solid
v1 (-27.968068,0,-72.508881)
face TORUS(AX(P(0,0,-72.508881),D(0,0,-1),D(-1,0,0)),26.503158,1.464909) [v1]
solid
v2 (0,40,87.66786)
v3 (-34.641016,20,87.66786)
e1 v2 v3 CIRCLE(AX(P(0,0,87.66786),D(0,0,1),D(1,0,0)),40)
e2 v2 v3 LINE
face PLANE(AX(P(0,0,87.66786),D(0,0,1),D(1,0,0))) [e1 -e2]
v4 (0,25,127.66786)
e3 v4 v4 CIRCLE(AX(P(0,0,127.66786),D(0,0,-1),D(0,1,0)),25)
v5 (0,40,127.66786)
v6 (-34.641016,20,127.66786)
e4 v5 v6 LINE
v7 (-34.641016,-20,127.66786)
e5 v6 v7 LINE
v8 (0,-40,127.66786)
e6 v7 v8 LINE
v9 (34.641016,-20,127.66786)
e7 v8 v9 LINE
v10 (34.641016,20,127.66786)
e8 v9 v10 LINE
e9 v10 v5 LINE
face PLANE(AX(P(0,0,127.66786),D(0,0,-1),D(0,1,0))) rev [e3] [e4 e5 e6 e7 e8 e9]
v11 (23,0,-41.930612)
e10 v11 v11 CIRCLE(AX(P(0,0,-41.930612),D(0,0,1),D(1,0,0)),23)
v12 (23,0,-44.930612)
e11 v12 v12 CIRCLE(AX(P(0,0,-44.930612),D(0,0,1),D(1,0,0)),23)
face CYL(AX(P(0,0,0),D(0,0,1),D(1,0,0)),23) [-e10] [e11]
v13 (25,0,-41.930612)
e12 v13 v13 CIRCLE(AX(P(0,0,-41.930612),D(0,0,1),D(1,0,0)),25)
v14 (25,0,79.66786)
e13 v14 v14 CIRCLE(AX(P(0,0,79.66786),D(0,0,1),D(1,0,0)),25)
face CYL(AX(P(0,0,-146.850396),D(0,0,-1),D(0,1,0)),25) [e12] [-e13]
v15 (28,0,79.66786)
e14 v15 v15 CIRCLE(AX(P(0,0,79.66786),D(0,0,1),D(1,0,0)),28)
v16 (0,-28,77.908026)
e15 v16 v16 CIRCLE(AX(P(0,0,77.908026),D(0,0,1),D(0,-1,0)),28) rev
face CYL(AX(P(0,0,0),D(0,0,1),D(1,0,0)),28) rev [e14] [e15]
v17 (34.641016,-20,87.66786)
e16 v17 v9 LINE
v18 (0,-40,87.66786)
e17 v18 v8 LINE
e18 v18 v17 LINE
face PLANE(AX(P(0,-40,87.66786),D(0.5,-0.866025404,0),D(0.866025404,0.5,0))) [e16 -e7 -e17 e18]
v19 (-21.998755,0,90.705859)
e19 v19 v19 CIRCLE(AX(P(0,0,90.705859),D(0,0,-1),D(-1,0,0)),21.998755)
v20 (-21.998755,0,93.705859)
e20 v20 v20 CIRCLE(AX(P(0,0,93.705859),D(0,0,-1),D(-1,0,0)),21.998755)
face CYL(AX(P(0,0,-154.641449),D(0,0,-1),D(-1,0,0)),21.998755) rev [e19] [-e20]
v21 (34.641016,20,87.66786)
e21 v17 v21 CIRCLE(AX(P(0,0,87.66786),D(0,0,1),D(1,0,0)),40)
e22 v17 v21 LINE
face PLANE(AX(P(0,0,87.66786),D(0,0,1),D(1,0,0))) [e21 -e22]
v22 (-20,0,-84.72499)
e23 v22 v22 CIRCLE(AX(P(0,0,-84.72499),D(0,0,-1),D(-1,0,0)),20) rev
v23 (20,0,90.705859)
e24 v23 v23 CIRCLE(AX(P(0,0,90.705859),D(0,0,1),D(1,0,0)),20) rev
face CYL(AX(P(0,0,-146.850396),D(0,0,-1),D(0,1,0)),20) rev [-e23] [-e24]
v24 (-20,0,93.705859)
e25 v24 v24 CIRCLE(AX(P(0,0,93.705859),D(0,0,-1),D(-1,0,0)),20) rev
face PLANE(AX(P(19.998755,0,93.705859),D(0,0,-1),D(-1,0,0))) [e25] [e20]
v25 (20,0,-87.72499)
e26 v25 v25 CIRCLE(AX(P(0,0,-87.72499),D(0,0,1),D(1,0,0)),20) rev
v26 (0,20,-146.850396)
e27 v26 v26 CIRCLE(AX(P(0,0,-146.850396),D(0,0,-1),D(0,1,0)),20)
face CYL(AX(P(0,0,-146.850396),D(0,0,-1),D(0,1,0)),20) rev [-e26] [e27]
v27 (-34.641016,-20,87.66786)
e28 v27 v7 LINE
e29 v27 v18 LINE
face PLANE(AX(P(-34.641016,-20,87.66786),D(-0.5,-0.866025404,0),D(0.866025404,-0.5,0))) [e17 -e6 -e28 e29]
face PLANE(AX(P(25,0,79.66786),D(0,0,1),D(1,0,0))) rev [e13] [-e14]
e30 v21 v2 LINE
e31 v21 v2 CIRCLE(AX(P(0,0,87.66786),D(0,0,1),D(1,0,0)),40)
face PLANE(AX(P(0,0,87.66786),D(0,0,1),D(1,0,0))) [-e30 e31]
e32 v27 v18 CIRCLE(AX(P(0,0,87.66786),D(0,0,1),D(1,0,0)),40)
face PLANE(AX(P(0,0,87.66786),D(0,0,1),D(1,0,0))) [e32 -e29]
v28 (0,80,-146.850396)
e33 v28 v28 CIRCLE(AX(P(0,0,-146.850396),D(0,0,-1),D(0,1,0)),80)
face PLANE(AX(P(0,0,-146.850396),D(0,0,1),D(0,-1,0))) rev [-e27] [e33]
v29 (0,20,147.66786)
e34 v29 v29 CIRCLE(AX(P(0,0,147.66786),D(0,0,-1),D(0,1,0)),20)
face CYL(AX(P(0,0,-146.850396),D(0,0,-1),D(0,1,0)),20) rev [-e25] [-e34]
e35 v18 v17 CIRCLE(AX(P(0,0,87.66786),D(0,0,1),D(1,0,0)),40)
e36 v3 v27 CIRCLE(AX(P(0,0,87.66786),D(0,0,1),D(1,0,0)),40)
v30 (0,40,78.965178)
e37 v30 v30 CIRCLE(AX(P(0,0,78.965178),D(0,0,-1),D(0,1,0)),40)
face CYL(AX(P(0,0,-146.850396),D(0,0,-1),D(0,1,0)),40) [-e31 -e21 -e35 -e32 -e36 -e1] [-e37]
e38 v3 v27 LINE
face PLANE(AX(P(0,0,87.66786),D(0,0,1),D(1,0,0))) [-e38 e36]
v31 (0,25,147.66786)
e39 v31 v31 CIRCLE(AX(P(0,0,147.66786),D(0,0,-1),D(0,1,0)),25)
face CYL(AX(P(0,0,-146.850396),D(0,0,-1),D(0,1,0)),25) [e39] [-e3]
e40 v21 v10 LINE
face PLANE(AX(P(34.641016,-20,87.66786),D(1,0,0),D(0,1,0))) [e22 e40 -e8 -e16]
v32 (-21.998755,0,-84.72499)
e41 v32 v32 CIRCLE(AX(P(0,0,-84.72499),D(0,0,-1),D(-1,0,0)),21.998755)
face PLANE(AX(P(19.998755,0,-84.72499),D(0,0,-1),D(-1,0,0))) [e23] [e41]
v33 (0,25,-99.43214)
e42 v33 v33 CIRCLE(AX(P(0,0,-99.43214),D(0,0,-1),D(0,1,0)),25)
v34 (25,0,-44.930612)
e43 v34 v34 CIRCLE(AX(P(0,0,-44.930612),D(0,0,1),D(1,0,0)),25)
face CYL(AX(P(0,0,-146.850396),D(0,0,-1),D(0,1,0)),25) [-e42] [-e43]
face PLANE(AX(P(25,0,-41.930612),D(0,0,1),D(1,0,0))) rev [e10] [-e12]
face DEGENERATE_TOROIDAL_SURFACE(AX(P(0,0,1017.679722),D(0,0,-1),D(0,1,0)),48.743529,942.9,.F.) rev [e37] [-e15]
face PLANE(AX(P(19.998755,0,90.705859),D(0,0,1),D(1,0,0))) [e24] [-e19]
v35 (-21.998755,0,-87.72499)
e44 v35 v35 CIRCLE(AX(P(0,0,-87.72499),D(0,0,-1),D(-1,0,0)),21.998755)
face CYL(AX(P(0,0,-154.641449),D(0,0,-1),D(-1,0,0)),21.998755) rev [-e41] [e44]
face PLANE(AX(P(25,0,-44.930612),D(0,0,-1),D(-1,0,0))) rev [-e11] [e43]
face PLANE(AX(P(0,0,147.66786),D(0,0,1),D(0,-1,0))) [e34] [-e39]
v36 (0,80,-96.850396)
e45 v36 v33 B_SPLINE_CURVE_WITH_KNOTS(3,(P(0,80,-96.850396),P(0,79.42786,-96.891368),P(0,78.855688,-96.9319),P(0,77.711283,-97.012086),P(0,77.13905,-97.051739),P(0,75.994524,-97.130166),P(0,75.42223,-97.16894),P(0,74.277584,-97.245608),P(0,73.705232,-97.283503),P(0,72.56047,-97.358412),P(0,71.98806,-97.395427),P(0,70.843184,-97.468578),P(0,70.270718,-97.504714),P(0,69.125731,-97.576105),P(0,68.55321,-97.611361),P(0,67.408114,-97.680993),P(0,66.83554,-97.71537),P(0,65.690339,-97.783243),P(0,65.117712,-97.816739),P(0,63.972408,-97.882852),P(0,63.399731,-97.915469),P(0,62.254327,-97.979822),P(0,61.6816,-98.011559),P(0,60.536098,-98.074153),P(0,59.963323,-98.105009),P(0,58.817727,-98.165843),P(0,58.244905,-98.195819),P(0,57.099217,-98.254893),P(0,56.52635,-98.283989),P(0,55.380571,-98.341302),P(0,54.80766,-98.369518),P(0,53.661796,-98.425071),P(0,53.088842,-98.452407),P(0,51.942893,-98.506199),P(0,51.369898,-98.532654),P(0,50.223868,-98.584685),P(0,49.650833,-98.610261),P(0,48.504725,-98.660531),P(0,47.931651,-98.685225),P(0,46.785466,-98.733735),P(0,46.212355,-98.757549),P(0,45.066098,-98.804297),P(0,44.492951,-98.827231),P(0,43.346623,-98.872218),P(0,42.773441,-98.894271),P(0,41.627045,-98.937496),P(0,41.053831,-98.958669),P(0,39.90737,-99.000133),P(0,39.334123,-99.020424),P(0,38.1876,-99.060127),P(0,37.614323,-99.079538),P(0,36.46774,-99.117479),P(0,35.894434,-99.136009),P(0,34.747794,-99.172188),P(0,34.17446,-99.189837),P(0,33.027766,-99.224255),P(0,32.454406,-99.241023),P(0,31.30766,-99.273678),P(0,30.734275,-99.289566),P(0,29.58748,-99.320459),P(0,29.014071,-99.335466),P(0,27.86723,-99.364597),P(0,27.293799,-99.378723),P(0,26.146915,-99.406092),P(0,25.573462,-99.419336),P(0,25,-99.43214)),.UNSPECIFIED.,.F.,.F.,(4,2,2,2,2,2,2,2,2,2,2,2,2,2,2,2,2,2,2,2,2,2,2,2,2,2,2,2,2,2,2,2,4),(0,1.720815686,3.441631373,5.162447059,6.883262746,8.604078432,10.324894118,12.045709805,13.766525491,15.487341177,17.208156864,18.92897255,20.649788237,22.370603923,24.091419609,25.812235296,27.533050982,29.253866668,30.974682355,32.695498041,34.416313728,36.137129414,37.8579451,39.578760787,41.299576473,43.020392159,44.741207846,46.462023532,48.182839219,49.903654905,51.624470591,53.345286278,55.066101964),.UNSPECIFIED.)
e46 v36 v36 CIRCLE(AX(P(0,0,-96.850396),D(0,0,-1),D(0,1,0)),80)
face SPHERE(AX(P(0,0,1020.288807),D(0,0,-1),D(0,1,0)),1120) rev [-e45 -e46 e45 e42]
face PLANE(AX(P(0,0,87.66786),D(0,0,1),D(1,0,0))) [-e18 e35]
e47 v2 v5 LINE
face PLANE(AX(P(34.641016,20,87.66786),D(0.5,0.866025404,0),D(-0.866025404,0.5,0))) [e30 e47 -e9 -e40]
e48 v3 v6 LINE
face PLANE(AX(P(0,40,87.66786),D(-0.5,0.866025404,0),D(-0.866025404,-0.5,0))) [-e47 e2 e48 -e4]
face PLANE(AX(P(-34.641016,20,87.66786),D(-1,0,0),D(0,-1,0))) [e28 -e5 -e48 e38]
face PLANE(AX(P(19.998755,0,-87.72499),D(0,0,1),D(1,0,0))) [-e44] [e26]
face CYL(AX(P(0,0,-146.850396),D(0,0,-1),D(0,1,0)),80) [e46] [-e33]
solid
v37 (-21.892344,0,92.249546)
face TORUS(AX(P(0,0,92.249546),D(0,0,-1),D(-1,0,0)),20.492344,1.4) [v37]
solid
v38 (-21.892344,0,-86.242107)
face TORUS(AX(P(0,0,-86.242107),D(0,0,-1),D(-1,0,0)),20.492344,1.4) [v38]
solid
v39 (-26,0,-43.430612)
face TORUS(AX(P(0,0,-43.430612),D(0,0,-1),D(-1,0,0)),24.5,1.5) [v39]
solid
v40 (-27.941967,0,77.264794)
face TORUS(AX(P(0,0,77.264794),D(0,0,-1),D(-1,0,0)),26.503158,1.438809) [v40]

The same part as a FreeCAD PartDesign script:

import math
import FreeCAD as App
import Part
import Sketcher
from FreeCAD import Vector
Q = App.Units.Quantity

doc = App.newDocument("Part")
params = doc.addObject("Spreadsheet::Sheet", "Params")
for row, (alias, value) in enumerate([
    ("sketch1_radius", "1120 mm"),
    ("sketch1_width", "60 mm"),
    ("sketch1_width2", "15 mm"),
    ("sketch1_width3", "5 mm"),
    ("sketch1_height", "50 mm"),
    ("revolution_angle", "360 deg"),
    ("sketch2_height", "40 mm"),
    ("sketch2_length", "40 mm"),
    ("pocket1_length", "40 mm"),
    ("sketch3_width", "3 mm"),
    ("sketch3_width2", "2 mm"),
    ("groove_angle", "360 deg"),
    ("sketch4_width", "2 mm"),
    ("sketch4_height", "3 mm"),
    ("groove2_angle", "360 deg"),
    ("sketch5_diameter", "3 mm"),
    ("sketch5_diameter2", "2.8 mm"),
    ("revolution2_angle", "360 deg"),
], start=1):
    params.set(f"A{row}", alias)
    params.set(f"B{row}", "=" + value)
    params.setAlias(f"B{row}", alias)

body = doc.addObject("PartDesign::Body", "Body")

# Sketch on YZ plane
sketch1 = body.newObject("Sketcher::SketchObject", "Sketch")
sketch1.AttachmentSupport = (doc.getObject("YZ_Plane"), [""])
sketch1.MapMode = "FlatFace"
sketch1.addGeometry([
    Part.LineSegment(Vector(20, -146.850396, 0), Vector(80, -146.850396, 0)),  # 0
    Part.LineSegment(Vector(80, -146.850396, 0), Vector(80, -96.850396, 0)),  # 1
    Part.ArcOfCircle(Part.Circle(Vector(0, 1020.288807, 0), Vector(0, 0, 1), 1120), math.radians(-88.72097), math.radians(-85.903956)),  # 2
    Part.LineSegment(Vector(25, -99.43214, 0), Vector(25, 77.66786, 0)),  # 3
    Part.ArcOfCircle(Part.Circle(Vector(-48.743528, 1017.679709, 0), Vector(0, 0, 1), 942.899987), math.radians(-85.514358), math.radians(-84.599463)),  # 4
    Part.LineSegment(Vector(40, 78.965178, 0), Vector(40, 127.66786, 0)),  # 5
    Part.LineSegment(Vector(40, 127.66786, 0), Vector(25, 127.66786, 0)),  # 6
    Part.LineSegment(Vector(25, 127.66786, 0), Vector(25, 147.66786, 0)),  # 7
    Part.LineSegment(Vector(25, 147.66786, 0), Vector(20, 147.66786, 0)),  # 8
    Part.LineSegment(Vector(20, 147.66786, 0), Vector(20, -146.850396, 0)),  # 9
], False)
sketch1.addConstraint([
    Sketcher.Constraint("Coincident", 0, 2, 1, 1),
    Sketcher.Constraint("Coincident", 1, 2, 2, 2),
    Sketcher.Constraint("Coincident", 2, 1, 3, 1),
    Sketcher.Constraint("Coincident", 3, 2, 4, 1),
    Sketcher.Constraint("Coincident", 4, 2, 5, 1),
    Sketcher.Constraint("Coincident", 5, 2, 6, 1),
    Sketcher.Constraint("Coincident", 6, 2, 7, 1),
    Sketcher.Constraint("Coincident", 7, 2, 8, 1),
    Sketcher.Constraint("Coincident", 8, 2, 9, 1),
    Sketcher.Constraint("Coincident", 9, 2, 0, 1),
    Sketcher.Constraint("Horizontal", 0),
    Sketcher.Constraint("Vertical", 1),
    Sketcher.Constraint("Vertical", 3),
    Sketcher.Constraint("Vertical", 5),
    Sketcher.Constraint("Horizontal", 6),
    Sketcher.Constraint("Vertical", 7),
    Sketcher.Constraint("Horizontal", 8),
    Sketcher.Constraint("Vertical", 9),
    Sketcher.Constraint("PointOnObject", 2, 3, -2),
    Sketcher.Constraint("Vertical", 3, 2, 6, 2),
    Sketcher.Constraint("Radius", 2, 1120.0),
    Sketcher.Constraint("DistanceX", 0, 1, 0, 2, 60.0),
    Sketcher.Constraint("DistanceX", 6, 2, 6, 1, 15.0),
    Sketcher.Constraint("DistanceX", 8, 2, 8, 1, 5.0),
    Sketcher.Constraint("DistanceY", 1, 1, 1, 2, 50.0),
    Sketcher.Constraint("DistanceY", 7, 1, 7, 2, 20.0),
    Sketcher.Constraint("DistanceY", 3, 1, 3, 2, 177.1),
    Sketcher.Constraint("DistanceX", -1, 1, 0, 2, 80.0),
    Sketcher.Constraint("DistanceY", 3, 2, 5, 2, 50.0),
    Sketcher.Constraint("Radius", 4, 942.899987),
    Sketcher.Constraint("DistanceY", 5, 1, 5, 2, 48.702682),
    Sketcher.Constraint("DistanceY", -1, 1, 4, 3, 1017.679709),
])
sketch1.setExpression("Constraints[20]", "Params.sketch1_radius")
sketch1.setExpression("Constraints[21]", "Params.sketch1_width")
sketch1.setExpression("Constraints[22]", "Params.sketch1_width2")
sketch1.setExpression("Constraints[23]", "Params.sketch1_width3")
sketch1.setExpression("Constraints[24]", "Params.sketch1_height")
revolution = body.newObject("PartDesign::Revolution", "Revolution")
revolution.Profile = sketch1
revolution.ReferenceAxis = (sketch1, ["V_Axis"])
revolution.setExpression("Angle", "Params.revolution_angle")

# Sketch on XY plane
sketch2 = body.newObject("Sketcher::SketchObject", "Sketch001")
sketch2.AttachmentSupport = (doc.getObject("XY_Plane"), [""])
sketch2.MapMode = "FlatFace"
sketch2.AttachmentOffset = App.Placement(Vector(0, 0, 127.66786), App.Rotation())
sketch2.addGeometry([
    Part.Circle(Vector(0, 0, 0), Vector(0, 0, 1), 47.475733),  # 0
    Part.LineSegment(Vector(34.641016, 20, 0), Vector(34.641016, -20, 0)),  # 1
    Part.LineSegment(Vector(34.641016, -20, 0), Vector(0, -40, 0)),  # 2
    Part.LineSegment(Vector(0, -40, 0), Vector(-34.641016, -20, 0)),  # 3
    Part.LineSegment(Vector(-34.641016, -20, 0), Vector(-34.641016, 20, 0)),  # 4
    Part.LineSegment(Vector(-34.641016, 20, 0), Vector(0, 40, 0)),  # 5
    Part.LineSegment(Vector(0, 40, 0), Vector(34.641016, 20, 0)),  # 6
], False)
sketch2.addConstraint([
    Sketcher.Constraint("Coincident", 1, 2, 2, 1),
    Sketcher.Constraint("Coincident", 2, 2, 3, 1),
    Sketcher.Constraint("Coincident", 3, 2, 4, 1),
    Sketcher.Constraint("Coincident", 4, 2, 5, 1),
    Sketcher.Constraint("Coincident", 5, 2, 6, 1),
    Sketcher.Constraint("Coincident", 6, 2, 1, 1),
    Sketcher.Constraint("Vertical", 1),
    Sketcher.Constraint("Vertical", 4),
    Sketcher.Constraint("Coincident", 0, 3, -1, 1),
    Sketcher.Constraint("Symmetric", 1, 2, 4, 2, -1, 1),
    Sketcher.Constraint("Symmetric", 2, 2, 5, 2, -1, 1),
    Sketcher.Constraint("PointOnObject", 2, 2, -2),
    Sketcher.Constraint("Parallel", 3, 6),
    Sketcher.Constraint("Horizontal", 1, 2, 3, 2),
    Sketcher.Constraint("DistanceY", 1, 2, 1, 1, 40.0),
    Sketcher.Constraint("Angle", 2, Q("-150 deg")),
    Sketcher.Constraint("Distance", 2, 40.0),
    Sketcher.Constraint("Diameter", 0, 94.951466),
])
sketch2.setExpression("Constraints[14]", "Params.sketch2_height")
sketch2.setExpression("Constraints[16]", "Params.sketch2_length")
pocket1 = body.newObject("PartDesign::Pocket", "Pocket")
pocket1.Profile = sketch2
pocket1.setExpression("Length", "Params.pocket1_length")

# Sketch on XZ plane
sketch3 = body.newObject("Sketcher::SketchObject", "Sketch002")
sketch3.AttachmentSupport = (doc.getObject("XZ_Plane"), [""])
sketch3.MapMode = "FlatFace"
sketch3.addGeometry([
    Part.LineSegment(Vector(25, -98.850396, 0), Vector(25, -96.850396, 0)),  # 0
    Part.LineSegment(Vector(25, -96.850396, 0), Vector(28, -96.850396, 0)),  # 1
    Part.LineSegment(Vector(28, -96.850396, 0), Vector(28, -98.850396, 0)),  # 2
    Part.LineSegment(Vector(28, -98.850396, 0), Vector(25, -98.850396, 0)),  # 3
    Part.LineSegment(Vector(23, -44.930612, 0), Vector(23, -41.930612, 0)),  # 4
    Part.LineSegment(Vector(23, -41.930612, 0), Vector(25, -41.930612, 0)),  # 5
    Part.LineSegment(Vector(25, -41.930612, 0), Vector(25, -44.930612, 0)),  # 6
    Part.LineSegment(Vector(25, -44.930612, 0), Vector(23, -44.930612, 0)),  # 7
    Part.LineSegment(Vector(25, 77.66786, 0), Vector(25, 79.66786, 0)),  # 8
    Part.LineSegment(Vector(25, 79.66786, 0), Vector(28, 79.66786, 0)),  # 9
    Part.LineSegment(Vector(28, 79.66786, 0), Vector(28, 77.66786, 0)),  # 10
    Part.LineSegment(Vector(28, 77.66786, 0), Vector(25, 77.66786, 0)),  # 11
], False)
sketch3.addConstraint([
    Sketcher.Constraint("Coincident", 0, 2, 1, 1),
    Sketcher.Constraint("Coincident", 1, 2, 2, 1),
    Sketcher.Constraint("Coincident", 2, 2, 3, 1),
    Sketcher.Constraint("Coincident", 3, 2, 0, 1),
    Sketcher.Constraint("Coincident", 4, 2, 5, 1),
    Sketcher.Constraint("Coincident", 5, 2, 6, 1),
    Sketcher.Constraint("Coincident", 6, 2, 7, 1),
    Sketcher.Constraint("Coincident", 7, 2, 4, 1),
    Sketcher.Constraint("Coincident", 8, 2, 9, 1),
    Sketcher.Constraint("Coincident", 9, 2, 10, 1),
    Sketcher.Constraint("Coincident", 10, 2, 11, 1),
    Sketcher.Constraint("Coincident", 11, 2, 8, 1),
    Sketcher.Constraint("Vertical", 0),
    Sketcher.Constraint("Horizontal", 1),
    Sketcher.Constraint("Vertical", 2),
    Sketcher.Constraint("Horizontal", 3),
    Sketcher.Constraint("Vertical", 4),
    Sketcher.Constraint("Horizontal", 5),
    Sketcher.Constraint("Vertical", 6),
    Sketcher.Constraint("Horizontal", 7),
    Sketcher.Constraint("Vertical", 8),
    Sketcher.Constraint("Horizontal", 9),
    Sketcher.Constraint("Vertical", 10),
    Sketcher.Constraint("Horizontal", 11),
    Sketcher.Constraint("Vertical", 3, 2, 5, 2),
    Sketcher.Constraint("Vertical", 6, 2, 8, 2),
    Sketcher.Constraint("Vertical", 2, 2, 9, 2),
    Sketcher.Constraint("Equal", 7, 0),
    Sketcher.Constraint("Equal", 11, 4),
    Sketcher.Constraint("Equal", 2, 8),
    Sketcher.Constraint("DistanceX", 1, 1, 1, 2, 3.0),
    Sketcher.Constraint("DistanceX", 5, 1, 5, 2, 2.0),
    Sketcher.Constraint("DistanceX", -1, 1, 0, 2, 25.0),
    Sketcher.Constraint("DistanceY", -1, 1, 8, 2, 79.66786),
    Sketcher.Constraint("DistanceY", 0, 2, -1, 1, 96.850396),
    Sketcher.Constraint("DistanceY", 4, 2, -1, 1, 41.930612),
])
sketch3.setExpression("Constraints[30]", "Params.sketch3_width")
sketch3.setExpression("Constraints[31]", "Params.sketch3_width2")
groove = body.newObject("PartDesign::Groove", "Groove")
groove.Profile = sketch3
groove.ReferenceAxis = (sketch3, ["V_Axis"])
groove.setExpression("Angle", "Params.groove_angle")

# Sketch on XZ plane
sketch4 = body.newObject("Sketcher::SketchObject", "Sketch003")
sketch4.AttachmentSupport = (doc.getObject("XZ_Plane"), [""])
sketch4.MapMode = "FlatFace"
sketch4.addGeometry([
    Part.LineSegment(Vector(19.998755, 90.705859, 0), Vector(19.998755, 93.705859, 0)),  # 0
    Part.LineSegment(Vector(19.998755, 93.705859, 0), Vector(21.998755, 93.705859, 0)),  # 1
    Part.LineSegment(Vector(21.998755, 93.705859, 0), Vector(21.998755, 90.705859, 0)),  # 2
    Part.LineSegment(Vector(21.998755, 90.705859, 0), Vector(19.998755, 90.705859, 0)),  # 3
    Part.LineSegment(Vector(19.998755, -87.72499, 0), Vector(19.998755, -84.72499, 0)),  # 4
    Part.LineSegment(Vector(19.998755, -84.72499, 0), Vector(21.998755, -84.72499, 0)),  # 5
    Part.LineSegment(Vector(21.998755, -84.72499, 0), Vector(21.998755, -87.72499, 0)),  # 6
    Part.LineSegment(Vector(21.998755, -87.72499, 0), Vector(19.998755, -87.72499, 0)),  # 7
], False)
sketch4.addConstraint([
    Sketcher.Constraint("Coincident", 0, 2, 1, 1),
    Sketcher.Constraint("Coincident", 1, 2, 2, 1),
    Sketcher.Constraint("Coincident", 2, 2, 3, 1),
    Sketcher.Constraint("Coincident", 3, 2, 0, 1),
    Sketcher.Constraint("Coincident", 4, 2, 5, 1),
    Sketcher.Constraint("Coincident", 5, 2, 6, 1),
    Sketcher.Constraint("Coincident", 6, 2, 7, 1),
    Sketcher.Constraint("Coincident", 7, 2, 4, 1),
    Sketcher.Constraint("Vertical", 0),
    Sketcher.Constraint("Horizontal", 1),
    Sketcher.Constraint("Vertical", 2),
    Sketcher.Constraint("Horizontal", 3),
    Sketcher.Constraint("Vertical", 4),
    Sketcher.Constraint("Horizontal", 5),
    Sketcher.Constraint("Vertical", 6),
    Sketcher.Constraint("Horizontal", 7),
    Sketcher.Constraint("Vertical", 3, 2, 4, 2),
    Sketcher.Constraint("Vertical", 2, 2, 5, 2),
    Sketcher.Constraint("Equal", 2, 4),
    Sketcher.Constraint("DistanceX", 1, 1, 1, 2, 2.0),
    Sketcher.Constraint("DistanceY", 0, 1, 0, 2, 3.0),
    Sketcher.Constraint("DistanceY", -1, 1, 0, 2, 93.705859),
    Sketcher.Constraint("DistanceY", 4, 2, -1, 1, 84.72499),
    Sketcher.Constraint("DistanceX", -1, 1, 0, 2, 19.998755),
])
sketch4.setExpression("Constraints[19]", "Params.sketch4_width")
sketch4.setExpression("Constraints[20]", "Params.sketch4_height")
groove2 = body.newObject("PartDesign::Groove", "Groove001")
groove2.Profile = sketch4
groove2.ReferenceAxis = (sketch4, ["V_Axis"])
groove2.setExpression("Angle", "Params.groove2_angle")
body2 = doc.addObject("PartDesign::Body", "Body001")
body2.AllowCompound = True

# Sketch on XZ plane
sketch5 = body2.newObject("Sketcher::SketchObject", "Sketch004")
sketch5.AttachmentSupport = (doc.getObject("XZ_Plane001"), [""])
sketch5.MapMode = "FlatFace"
sketch5.addGeometry([
    Part.Circle(Vector(24.5, -43.430612, 0), Vector(0, 0, 1), 1.5),  # 0
    Part.Circle(Vector(26.503158, -72.508881, 0), Vector(0, 0, 1), 1.464909),  # 1
    Part.Circle(Vector(20.492344, -86.242107, 0), Vector(0, 0, 1), 1.4),  # 2
    Part.Circle(Vector(26.503158, 77.264794, 0), Vector(0, 0, 1), 1.438809),  # 3
    Part.Circle(Vector(20.492344, 92.249546, 0), Vector(0, 0, 1), 1.4),  # 4
], False)
sketch5.addConstraint([
    Sketcher.Constraint("Equal", 2, 4),
    Sketcher.Constraint("Vertical", 1, 3, 3, 3),
    Sketcher.Constraint("Vertical", 2, 3, 4, 3),
    Sketcher.Constraint("Diameter", 0, 3.0),
    Sketcher.Constraint("Diameter", 2, 2.8),
    Sketcher.Constraint("DistanceX", -1, 1, 0, 3, 24.5),
    Sketcher.Constraint("Diameter", 1, 2.929818),
    Sketcher.Constraint("Diameter", 3, 2.877617),
    Sketcher.Constraint("DistanceY", 2, 3, 3, 3, 163.506901),
    Sketcher.Constraint("DistanceX", -1, 1, 1, 3, 26.503158),
    Sketcher.Constraint("DistanceY", 1, 3, -1, 1, 72.508881),
    Sketcher.Constraint("DistanceY", 1, 3, 0, 3, 29.078269),
    Sketcher.Constraint("DistanceY", 3, 3, 4, 3, 14.984752),
    Sketcher.Constraint("DistanceX", -1, 1, 2, 3, 20.492344),
    Sketcher.Constraint("DistanceY", 2, 3, -1, 1, 86.242107),
])
sketch5.setExpression("Constraints[3]", "Params.sketch5_diameter")
sketch5.setExpression("Constraints[4]", "Params.sketch5_diameter2")
revolution2 = body2.newObject("PartDesign::Revolution", "Revolution001")
revolution2.Profile = sketch5
revolution2.ReferenceAxis = (sketch5, ["V_Axis"])
revolution2.setExpression("Angle", "Params.revolution2_angle")

doc.recompute()
